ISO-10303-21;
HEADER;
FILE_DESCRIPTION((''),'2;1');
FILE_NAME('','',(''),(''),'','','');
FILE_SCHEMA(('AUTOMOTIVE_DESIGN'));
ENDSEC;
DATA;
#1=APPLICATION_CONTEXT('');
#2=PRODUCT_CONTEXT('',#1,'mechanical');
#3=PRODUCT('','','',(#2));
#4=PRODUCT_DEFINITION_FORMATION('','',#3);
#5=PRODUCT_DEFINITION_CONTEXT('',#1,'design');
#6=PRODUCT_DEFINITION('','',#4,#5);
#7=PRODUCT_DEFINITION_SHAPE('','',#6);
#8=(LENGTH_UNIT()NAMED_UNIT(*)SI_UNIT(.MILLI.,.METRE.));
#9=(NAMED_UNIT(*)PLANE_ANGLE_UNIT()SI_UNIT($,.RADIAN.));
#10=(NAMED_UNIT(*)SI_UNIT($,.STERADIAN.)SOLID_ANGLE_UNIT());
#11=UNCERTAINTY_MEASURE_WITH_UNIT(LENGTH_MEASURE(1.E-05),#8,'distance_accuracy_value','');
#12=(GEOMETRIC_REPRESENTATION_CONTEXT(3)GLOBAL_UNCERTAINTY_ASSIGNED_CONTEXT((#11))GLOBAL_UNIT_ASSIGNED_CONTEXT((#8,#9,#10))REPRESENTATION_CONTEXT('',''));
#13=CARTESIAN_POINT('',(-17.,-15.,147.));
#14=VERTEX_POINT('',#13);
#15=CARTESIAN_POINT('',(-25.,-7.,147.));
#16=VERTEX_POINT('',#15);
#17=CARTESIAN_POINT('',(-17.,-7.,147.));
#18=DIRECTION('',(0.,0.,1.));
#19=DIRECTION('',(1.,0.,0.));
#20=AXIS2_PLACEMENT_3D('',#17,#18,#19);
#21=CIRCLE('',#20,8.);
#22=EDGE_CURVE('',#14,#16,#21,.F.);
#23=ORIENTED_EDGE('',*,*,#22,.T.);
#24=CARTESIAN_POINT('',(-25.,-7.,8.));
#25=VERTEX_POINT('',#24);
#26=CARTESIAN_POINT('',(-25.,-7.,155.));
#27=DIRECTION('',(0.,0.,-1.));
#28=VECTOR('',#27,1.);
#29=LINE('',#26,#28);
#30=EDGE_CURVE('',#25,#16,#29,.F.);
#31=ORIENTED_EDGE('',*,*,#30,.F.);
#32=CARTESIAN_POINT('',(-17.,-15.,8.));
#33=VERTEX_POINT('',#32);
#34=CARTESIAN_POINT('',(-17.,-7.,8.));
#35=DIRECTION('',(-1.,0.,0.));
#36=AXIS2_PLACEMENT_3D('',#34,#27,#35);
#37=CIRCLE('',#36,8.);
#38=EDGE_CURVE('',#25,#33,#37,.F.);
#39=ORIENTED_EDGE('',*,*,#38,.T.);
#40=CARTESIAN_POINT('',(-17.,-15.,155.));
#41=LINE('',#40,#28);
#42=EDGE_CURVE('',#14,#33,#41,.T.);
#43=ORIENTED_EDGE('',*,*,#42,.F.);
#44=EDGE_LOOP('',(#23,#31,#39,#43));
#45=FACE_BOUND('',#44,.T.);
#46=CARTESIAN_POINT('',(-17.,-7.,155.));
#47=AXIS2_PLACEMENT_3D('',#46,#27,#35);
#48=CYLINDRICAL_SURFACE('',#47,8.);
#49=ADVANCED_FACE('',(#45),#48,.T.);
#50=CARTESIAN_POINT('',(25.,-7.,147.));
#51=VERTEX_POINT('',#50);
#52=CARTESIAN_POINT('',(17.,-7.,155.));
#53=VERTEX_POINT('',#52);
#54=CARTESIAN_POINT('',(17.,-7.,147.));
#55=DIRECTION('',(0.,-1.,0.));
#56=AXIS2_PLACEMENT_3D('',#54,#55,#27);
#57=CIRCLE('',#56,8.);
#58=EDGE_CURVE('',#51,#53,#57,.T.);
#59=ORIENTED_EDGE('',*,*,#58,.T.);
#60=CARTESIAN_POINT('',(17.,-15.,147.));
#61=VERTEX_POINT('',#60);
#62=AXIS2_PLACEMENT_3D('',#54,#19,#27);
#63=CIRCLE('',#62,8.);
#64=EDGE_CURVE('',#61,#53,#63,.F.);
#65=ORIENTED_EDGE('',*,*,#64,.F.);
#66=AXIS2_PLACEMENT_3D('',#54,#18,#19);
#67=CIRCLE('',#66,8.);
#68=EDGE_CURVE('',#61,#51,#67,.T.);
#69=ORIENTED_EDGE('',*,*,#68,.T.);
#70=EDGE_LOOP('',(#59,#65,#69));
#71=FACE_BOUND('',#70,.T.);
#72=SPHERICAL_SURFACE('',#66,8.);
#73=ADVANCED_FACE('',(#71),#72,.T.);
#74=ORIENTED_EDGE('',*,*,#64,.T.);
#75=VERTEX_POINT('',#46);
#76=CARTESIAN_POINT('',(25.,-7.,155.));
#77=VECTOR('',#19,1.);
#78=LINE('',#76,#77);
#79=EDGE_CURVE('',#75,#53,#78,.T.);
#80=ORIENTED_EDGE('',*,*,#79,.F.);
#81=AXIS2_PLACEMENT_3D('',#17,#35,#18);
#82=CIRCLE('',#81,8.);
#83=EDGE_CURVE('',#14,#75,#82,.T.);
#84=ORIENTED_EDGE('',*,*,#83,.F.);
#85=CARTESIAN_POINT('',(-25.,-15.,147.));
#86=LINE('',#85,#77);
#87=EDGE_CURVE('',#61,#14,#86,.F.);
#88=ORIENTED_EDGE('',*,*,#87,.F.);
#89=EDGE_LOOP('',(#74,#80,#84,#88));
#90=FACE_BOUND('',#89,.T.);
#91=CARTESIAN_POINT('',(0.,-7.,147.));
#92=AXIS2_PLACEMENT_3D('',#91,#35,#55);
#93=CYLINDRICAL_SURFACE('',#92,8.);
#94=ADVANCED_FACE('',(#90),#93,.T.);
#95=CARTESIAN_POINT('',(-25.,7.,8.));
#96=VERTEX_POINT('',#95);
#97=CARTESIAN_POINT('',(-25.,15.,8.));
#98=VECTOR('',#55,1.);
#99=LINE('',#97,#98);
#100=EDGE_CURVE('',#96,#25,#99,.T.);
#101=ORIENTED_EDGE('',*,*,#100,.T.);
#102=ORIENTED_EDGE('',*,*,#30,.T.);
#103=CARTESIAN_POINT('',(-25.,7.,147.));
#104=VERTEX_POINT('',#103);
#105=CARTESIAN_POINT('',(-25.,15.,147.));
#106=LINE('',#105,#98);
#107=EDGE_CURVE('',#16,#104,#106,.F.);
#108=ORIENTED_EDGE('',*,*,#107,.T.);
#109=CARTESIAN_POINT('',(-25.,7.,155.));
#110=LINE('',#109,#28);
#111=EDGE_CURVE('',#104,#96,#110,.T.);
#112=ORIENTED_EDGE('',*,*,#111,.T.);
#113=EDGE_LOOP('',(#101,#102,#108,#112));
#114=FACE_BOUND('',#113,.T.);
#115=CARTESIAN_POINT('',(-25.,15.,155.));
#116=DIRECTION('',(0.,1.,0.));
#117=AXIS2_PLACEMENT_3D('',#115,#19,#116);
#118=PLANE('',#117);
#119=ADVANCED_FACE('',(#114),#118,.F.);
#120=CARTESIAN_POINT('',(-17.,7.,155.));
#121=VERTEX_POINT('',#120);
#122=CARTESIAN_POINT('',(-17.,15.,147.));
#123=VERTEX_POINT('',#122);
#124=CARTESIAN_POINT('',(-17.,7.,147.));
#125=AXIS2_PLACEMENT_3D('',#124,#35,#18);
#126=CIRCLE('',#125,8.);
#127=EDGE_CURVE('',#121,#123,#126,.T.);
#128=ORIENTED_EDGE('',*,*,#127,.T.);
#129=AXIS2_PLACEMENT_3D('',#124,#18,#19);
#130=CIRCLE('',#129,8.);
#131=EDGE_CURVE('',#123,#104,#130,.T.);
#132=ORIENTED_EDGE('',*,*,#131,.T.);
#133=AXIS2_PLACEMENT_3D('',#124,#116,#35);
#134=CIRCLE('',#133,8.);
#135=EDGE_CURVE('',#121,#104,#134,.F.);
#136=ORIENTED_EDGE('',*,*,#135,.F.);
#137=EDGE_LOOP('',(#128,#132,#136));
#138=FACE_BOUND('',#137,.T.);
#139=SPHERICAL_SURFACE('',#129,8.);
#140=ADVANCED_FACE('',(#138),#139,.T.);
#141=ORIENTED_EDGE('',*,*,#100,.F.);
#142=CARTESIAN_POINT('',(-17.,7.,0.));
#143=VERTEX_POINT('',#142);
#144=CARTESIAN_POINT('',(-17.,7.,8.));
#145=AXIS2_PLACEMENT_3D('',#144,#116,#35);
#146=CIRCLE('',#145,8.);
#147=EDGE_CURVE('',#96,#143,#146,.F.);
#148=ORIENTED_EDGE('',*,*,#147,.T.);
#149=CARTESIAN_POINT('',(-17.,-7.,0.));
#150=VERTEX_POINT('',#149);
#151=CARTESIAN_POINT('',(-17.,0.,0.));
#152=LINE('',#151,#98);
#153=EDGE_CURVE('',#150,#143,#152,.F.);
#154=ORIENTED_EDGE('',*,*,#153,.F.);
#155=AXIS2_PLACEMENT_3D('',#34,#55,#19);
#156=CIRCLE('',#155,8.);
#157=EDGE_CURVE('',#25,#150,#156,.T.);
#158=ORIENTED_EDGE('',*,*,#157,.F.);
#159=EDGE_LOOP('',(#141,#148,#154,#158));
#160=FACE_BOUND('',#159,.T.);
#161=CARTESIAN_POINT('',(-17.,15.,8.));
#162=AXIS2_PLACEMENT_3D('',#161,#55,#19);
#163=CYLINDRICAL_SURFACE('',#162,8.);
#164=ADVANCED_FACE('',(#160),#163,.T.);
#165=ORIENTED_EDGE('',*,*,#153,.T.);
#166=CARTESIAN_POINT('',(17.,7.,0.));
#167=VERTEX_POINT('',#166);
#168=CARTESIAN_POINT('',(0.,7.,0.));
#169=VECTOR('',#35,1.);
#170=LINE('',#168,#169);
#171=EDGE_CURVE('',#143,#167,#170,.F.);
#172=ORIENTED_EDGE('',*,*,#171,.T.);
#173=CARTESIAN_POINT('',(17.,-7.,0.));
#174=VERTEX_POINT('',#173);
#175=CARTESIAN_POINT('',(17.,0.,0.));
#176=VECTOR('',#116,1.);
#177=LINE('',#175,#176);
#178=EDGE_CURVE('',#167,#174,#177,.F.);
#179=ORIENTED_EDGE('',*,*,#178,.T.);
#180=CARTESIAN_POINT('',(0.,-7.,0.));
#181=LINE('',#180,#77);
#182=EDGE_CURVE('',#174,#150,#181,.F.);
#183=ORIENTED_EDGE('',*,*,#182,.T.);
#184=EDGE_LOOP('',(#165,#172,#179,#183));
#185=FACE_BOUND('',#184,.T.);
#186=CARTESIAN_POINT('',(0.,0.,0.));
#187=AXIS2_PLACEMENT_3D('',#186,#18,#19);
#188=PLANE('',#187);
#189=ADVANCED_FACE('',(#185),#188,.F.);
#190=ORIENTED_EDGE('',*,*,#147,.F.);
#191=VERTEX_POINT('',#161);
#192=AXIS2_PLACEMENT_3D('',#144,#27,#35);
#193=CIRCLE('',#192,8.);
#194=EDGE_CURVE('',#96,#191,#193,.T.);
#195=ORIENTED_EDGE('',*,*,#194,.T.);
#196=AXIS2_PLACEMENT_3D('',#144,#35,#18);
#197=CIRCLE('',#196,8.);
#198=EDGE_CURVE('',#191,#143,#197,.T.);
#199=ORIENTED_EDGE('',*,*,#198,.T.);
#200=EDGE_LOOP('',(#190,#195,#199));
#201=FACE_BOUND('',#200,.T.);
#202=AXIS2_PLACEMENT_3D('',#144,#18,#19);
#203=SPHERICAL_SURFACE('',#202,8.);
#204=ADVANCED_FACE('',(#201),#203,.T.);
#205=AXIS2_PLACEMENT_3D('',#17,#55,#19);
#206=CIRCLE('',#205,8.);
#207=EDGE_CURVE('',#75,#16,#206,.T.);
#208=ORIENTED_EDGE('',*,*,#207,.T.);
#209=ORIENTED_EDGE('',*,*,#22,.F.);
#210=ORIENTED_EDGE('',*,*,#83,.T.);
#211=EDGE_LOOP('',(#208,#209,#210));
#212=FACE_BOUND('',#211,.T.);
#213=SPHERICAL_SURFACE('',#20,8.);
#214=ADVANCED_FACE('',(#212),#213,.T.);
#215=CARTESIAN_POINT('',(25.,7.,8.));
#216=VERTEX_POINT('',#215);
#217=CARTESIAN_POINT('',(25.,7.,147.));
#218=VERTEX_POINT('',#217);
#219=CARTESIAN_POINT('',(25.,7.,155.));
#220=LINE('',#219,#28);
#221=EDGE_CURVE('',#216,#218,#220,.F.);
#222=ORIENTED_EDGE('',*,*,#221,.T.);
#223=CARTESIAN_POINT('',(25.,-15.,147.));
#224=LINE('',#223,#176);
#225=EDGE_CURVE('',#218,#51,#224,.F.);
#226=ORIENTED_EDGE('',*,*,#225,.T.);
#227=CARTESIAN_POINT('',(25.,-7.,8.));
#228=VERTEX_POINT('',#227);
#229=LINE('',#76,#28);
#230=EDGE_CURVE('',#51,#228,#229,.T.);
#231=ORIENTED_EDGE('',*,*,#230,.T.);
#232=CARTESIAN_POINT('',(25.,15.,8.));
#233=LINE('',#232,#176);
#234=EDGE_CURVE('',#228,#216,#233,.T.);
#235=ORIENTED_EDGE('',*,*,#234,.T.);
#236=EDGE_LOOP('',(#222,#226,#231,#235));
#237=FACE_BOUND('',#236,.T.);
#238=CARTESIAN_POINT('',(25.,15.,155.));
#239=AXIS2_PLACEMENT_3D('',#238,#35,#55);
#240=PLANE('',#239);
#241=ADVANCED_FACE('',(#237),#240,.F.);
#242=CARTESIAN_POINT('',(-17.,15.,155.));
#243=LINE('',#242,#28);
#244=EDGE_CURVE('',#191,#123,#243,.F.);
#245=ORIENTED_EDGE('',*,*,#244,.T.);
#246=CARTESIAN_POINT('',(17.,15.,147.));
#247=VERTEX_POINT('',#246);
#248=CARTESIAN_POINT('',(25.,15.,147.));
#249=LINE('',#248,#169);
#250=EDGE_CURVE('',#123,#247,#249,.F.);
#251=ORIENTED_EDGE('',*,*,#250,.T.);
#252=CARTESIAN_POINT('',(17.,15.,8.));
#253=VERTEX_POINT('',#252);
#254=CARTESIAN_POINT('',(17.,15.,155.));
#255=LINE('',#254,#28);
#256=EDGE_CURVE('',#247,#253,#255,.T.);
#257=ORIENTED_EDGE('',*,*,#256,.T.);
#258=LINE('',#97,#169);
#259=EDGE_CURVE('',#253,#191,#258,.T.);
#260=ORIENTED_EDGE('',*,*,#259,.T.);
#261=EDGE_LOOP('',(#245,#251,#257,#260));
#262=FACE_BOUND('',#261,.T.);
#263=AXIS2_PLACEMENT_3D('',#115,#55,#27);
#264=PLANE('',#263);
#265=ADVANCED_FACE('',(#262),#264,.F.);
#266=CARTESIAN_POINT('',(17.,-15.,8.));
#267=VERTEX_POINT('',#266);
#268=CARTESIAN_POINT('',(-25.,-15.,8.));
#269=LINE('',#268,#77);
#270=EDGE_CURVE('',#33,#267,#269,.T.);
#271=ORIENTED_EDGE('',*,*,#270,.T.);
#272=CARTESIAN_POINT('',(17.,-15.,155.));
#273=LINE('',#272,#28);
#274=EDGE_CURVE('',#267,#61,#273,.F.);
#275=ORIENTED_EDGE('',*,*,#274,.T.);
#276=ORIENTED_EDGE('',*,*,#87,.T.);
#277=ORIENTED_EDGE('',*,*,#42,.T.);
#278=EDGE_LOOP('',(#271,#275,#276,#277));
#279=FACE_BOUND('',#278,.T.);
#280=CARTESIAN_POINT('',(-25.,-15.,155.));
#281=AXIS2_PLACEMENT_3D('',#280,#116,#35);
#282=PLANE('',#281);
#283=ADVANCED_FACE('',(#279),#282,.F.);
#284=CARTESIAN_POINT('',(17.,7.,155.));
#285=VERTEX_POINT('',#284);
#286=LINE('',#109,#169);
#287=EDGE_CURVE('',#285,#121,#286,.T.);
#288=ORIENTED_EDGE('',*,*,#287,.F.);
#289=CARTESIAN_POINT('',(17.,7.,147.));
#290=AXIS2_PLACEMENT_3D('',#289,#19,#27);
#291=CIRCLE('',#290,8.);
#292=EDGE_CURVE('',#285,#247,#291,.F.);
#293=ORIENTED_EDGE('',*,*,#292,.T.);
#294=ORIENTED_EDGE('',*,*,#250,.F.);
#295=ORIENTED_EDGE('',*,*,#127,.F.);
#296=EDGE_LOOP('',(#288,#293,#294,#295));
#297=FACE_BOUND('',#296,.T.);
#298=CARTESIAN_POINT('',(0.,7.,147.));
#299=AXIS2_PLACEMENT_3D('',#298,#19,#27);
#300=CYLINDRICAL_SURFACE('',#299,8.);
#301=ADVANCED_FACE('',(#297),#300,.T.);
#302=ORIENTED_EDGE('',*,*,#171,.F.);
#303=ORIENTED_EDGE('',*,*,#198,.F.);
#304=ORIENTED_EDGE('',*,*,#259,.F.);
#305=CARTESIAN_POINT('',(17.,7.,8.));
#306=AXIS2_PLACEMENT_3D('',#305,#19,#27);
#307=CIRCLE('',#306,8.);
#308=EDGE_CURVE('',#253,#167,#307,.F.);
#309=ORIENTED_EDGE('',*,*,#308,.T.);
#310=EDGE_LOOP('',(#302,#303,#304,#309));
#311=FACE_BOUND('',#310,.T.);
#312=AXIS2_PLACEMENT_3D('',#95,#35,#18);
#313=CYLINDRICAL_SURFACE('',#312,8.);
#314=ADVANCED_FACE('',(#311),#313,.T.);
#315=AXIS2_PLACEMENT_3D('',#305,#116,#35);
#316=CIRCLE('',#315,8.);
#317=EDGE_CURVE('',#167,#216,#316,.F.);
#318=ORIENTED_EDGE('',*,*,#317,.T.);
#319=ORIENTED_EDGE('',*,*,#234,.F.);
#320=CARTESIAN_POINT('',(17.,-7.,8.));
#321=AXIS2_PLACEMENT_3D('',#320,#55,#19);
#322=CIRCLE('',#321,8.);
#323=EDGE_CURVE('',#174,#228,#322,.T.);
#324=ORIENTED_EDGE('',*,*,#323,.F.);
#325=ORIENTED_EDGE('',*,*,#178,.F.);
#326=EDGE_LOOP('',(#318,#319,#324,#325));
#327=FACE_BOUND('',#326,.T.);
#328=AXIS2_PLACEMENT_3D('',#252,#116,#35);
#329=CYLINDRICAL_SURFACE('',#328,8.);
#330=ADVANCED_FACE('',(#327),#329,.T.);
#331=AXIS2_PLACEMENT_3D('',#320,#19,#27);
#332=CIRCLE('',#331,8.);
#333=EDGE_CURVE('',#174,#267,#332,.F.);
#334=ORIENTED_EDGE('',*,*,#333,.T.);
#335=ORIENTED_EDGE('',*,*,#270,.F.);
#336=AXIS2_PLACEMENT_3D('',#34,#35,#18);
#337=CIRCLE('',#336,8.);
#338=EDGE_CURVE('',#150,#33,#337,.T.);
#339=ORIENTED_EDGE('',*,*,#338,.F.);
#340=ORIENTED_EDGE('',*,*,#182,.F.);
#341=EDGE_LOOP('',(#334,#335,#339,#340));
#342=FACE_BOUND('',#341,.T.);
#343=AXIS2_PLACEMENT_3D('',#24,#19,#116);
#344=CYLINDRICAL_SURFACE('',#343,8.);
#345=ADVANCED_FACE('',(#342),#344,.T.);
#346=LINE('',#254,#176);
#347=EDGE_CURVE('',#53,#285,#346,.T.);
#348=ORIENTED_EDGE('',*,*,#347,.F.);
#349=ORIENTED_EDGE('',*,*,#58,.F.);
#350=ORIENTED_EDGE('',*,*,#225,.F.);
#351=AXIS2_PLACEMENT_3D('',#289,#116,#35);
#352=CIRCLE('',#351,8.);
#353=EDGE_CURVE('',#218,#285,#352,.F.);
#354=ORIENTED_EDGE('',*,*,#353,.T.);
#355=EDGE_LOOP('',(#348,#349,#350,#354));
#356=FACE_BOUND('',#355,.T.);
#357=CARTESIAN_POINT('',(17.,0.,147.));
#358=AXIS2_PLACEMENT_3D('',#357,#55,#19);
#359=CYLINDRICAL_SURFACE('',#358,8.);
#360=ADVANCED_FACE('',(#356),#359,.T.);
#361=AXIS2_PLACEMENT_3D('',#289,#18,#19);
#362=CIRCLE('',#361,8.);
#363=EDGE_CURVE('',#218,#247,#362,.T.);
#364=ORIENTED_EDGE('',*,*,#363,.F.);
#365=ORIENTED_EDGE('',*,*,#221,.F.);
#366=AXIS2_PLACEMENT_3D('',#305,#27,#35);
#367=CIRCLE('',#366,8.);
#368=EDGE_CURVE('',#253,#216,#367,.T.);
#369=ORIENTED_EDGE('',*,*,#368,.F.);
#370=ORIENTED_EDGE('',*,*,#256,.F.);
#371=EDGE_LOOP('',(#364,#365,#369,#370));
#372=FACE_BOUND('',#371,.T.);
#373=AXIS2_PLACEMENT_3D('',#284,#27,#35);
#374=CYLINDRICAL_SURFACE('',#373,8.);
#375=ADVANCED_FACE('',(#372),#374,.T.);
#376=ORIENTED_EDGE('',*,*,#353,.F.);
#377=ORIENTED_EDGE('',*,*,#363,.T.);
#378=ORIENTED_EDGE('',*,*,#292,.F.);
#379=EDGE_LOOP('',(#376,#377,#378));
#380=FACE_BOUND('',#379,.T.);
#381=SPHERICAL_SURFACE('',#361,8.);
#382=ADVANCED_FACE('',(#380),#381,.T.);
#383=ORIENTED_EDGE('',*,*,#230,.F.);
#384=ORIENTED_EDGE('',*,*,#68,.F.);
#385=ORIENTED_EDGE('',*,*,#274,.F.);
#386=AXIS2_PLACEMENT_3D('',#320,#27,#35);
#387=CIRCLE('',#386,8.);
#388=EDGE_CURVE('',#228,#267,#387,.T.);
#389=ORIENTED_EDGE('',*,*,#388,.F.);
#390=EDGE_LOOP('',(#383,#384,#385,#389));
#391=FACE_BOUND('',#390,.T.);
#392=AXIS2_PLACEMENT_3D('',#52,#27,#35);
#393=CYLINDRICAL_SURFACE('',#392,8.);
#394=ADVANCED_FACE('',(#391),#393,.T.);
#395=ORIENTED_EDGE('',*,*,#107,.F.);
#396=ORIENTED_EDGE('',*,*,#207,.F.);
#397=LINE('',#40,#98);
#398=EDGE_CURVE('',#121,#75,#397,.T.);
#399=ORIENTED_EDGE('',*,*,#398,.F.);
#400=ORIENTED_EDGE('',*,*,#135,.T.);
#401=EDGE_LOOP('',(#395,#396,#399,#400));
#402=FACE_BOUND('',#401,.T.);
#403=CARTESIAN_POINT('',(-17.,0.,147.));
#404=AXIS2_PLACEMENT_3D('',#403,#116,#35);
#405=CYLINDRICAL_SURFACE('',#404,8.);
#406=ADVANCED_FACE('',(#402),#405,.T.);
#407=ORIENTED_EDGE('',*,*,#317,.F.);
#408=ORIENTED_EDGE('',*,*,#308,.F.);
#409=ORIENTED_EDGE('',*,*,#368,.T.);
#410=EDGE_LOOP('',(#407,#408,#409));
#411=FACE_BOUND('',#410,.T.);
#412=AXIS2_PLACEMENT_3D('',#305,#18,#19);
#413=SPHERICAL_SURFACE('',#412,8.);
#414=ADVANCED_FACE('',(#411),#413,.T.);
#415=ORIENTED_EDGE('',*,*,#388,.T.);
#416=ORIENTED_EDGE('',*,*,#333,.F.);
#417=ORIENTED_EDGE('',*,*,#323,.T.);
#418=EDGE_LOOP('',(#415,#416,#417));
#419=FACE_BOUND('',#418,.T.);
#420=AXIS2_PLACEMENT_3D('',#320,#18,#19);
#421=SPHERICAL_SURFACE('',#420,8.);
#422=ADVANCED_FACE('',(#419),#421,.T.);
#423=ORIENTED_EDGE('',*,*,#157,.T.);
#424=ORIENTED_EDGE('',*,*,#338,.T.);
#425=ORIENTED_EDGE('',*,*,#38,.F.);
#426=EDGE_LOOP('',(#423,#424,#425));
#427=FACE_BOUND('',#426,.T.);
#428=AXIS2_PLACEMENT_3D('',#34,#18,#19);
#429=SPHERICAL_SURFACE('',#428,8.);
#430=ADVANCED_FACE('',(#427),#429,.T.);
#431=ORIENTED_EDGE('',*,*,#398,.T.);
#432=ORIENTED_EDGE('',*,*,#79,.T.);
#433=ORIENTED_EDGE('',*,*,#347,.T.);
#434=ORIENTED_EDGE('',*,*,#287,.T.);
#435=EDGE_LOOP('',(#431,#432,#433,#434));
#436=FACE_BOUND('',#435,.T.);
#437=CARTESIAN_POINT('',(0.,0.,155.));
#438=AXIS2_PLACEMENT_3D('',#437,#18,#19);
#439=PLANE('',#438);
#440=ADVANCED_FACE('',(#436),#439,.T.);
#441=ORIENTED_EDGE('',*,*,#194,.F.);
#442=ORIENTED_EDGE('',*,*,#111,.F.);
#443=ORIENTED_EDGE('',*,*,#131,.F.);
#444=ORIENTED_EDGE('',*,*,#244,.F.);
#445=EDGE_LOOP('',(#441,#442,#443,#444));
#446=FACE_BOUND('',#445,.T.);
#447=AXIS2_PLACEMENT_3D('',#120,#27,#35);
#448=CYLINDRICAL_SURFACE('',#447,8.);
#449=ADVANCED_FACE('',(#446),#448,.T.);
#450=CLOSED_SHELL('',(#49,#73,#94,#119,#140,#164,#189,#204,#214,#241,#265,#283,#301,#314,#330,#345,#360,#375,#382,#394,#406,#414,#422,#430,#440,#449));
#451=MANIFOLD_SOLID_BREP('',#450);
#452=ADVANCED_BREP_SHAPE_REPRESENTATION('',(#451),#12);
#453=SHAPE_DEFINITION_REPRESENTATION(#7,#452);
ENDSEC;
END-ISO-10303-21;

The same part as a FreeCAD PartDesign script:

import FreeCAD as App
import Part
import Sketcher
from FreeCAD import Vector
Q = App.Units.Quantity


def add_polygon(sketch, points):
    """Adds a closed chain of lines whose ends are joined by coincident constraints."""
    first, n = sketch.GeometryCount, len(points)
    for a, b in zip(points, points[1:] + points[:1]):
        sketch.addGeometry(Part.LineSegment(App.Vector(*a, 0), App.Vector(*b, 0)), False)
    for i in range(n):
        sketch.addConstraint(Sketcher.Constraint("Coincident", first + i, 2, first + (i + 1) % n, 1))

doc = App.newDocument("Part")
body = doc.addObject("PartDesign::Body", "Body")

sketch1 = body.newObject("Sketcher::SketchObject", "Sketch")
sketch1.AttachmentSupport = (doc.getObject("XY_Plane"), [""])
sketch1.MapMode = "FlatFace"
add_polygon(sketch1, [(-25, 15), (-25, -15), (25, -15), (25, 15)])
sketch1.addConstraint([
    Sketcher.Constraint("Vertical", 0),
    Sketcher.Constraint("Horizontal", 1),
    Sketcher.Constraint("Vertical", 2),
    Sketcher.Constraint("Horizontal", 3),
    Sketcher.Constraint("Symmetric", 0, 2, 2, 2, -1, 1),
    Sketcher.Constraint("DistanceX", 1, 1, 1, 2, Q("50 mm")),
    Sketcher.Constraint("DistanceY", 0, 2, 0, 1, Q("30 mm")),
])
pad1 = body.newObject("PartDesign::Pad", "Pad")
pad1.Profile = sketch1
pad1.Length = 155
doc.recompute()

fillet = body.newObject("PartDesign::Fillet", "Fillet")
fillet.Base = (pad1, ["Edge1"])
fillet.UseAllEdges = True
fillet.Radius = 8

doc.recompute()
